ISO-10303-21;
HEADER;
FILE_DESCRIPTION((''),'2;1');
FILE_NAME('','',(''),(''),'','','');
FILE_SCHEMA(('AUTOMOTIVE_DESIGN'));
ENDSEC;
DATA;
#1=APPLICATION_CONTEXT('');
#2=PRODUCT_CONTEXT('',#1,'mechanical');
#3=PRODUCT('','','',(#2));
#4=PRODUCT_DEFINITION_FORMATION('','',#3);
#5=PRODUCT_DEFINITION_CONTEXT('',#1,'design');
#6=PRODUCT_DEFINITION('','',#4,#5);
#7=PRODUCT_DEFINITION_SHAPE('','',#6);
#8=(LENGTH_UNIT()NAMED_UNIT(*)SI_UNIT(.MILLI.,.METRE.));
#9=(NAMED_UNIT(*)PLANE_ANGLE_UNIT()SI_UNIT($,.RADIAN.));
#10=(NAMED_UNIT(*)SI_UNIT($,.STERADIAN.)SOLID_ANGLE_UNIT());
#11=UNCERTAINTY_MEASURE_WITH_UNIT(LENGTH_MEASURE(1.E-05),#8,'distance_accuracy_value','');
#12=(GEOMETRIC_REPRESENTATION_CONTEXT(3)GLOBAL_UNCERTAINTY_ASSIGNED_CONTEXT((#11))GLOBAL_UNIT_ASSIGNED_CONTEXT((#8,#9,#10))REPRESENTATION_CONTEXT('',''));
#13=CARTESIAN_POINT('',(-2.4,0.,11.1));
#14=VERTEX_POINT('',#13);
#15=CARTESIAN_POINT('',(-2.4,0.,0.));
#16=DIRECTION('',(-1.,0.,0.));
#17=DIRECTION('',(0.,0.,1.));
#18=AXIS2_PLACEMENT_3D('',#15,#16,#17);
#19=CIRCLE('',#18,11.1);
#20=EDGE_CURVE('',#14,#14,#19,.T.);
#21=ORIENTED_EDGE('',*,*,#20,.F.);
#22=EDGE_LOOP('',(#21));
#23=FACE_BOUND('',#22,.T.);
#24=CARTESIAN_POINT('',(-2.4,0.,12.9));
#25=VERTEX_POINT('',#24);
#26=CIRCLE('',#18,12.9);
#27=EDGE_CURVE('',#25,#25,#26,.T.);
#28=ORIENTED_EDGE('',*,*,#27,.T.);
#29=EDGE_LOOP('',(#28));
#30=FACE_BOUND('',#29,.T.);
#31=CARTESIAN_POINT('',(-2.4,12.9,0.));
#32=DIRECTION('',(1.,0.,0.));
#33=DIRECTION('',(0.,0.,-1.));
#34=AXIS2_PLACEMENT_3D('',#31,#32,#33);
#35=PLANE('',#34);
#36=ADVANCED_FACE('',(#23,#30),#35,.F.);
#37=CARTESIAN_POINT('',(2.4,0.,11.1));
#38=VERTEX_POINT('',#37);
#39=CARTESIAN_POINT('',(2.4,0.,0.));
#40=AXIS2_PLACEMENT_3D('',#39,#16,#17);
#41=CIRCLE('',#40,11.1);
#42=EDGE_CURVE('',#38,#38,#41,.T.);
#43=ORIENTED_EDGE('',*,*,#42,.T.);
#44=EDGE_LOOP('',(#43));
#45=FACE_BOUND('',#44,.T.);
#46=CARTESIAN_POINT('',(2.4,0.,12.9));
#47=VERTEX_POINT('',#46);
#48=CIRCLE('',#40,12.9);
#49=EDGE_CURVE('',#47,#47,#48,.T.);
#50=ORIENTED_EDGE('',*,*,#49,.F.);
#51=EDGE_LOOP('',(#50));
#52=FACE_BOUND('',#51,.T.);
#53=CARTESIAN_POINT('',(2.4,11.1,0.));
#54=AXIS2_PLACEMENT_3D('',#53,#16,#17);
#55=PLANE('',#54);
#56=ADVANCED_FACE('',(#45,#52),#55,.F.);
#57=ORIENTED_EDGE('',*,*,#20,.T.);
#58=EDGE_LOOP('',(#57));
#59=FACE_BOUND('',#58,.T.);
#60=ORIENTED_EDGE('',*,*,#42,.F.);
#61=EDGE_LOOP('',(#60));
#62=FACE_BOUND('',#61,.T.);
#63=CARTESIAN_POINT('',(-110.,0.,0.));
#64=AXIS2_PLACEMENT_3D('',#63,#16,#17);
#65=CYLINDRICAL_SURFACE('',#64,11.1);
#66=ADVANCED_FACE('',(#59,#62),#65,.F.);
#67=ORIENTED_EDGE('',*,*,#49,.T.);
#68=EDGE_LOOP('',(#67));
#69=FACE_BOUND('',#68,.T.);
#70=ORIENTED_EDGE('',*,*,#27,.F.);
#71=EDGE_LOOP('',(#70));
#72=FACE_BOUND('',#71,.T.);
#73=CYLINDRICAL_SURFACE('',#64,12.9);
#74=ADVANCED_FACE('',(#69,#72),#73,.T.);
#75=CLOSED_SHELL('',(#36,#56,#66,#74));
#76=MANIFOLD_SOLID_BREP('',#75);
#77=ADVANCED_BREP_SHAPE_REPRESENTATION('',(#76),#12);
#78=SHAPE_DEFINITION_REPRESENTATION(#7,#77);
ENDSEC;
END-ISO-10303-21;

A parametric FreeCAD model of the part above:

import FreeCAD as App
import Part
import Sketcher

V = App.Vector
Q = App.Units.Quantity

doc = App.newDocument("Part")
body = doc.addObject("PartDesign::Body", "Body")

# Sketch on XY plane
sketch1 = doc.addObject("Sketcher::SketchObject", "Sketch")
body.addObject(sketch1)
sketch1.AttachmentSupport = (doc.XY_Plane, [""])
sketch1.MapMode = "FlatFace"
sketch1.addGeometry([
    Part.LineSegment(V(-2.4, 12.9, 0), V(-2.4, 11.1, 0)),
    Part.LineSegment(V(-2.4, 11.1, 0), V(2.4, 11.1, 0)),
    Part.LineSegment(V(2.4, 11.1, 0), V(2.4, 12.9, 0)),
    Part.LineSegment(V(2.4, 12.9, 0), V(-2.4, 12.9, 0)),
], False)
sketch1.addConstraint([
    Sketcher.Constraint("Coincident", 0, 2, 1, 1),
    Sketcher.Constraint("Coincident", 1, 2, 2, 1),
    Sketcher.Constraint("Coincident", 2, 2, 3, 1),
    Sketcher.Constraint("Coincident", 3, 2, 0, 1),
    Sketcher.Constraint("Vertical", 0),
    Sketcher.Constraint("Horizontal", 1),
    Sketcher.Constraint("Vertical", 2),
    Sketcher.Constraint("Horizontal", 3),
    Sketcher.Constraint("DistanceX", 1, 1, 1, 2, Q("4.8 mm")),
    Sketcher.Constraint("DistanceY", 0, 2, 0, 1, Q("1.8 mm")),
    Sketcher.Constraint("DistanceX", 0, 2, -1, 1, Q("2.4 mm")),
    Sketcher.Constraint("DistanceY", -1, 1, 0, 2, Q("11.1 mm")),
])
revolution = doc.addObject("PartDesign::Revolution", "Revolution")
body.addObject(revolution)
revolution.Profile = sketch1
revolution.ReferenceAxis = (sketch1, ["H_Axis"])
revolution.Angle = 360

doc.recompute()
